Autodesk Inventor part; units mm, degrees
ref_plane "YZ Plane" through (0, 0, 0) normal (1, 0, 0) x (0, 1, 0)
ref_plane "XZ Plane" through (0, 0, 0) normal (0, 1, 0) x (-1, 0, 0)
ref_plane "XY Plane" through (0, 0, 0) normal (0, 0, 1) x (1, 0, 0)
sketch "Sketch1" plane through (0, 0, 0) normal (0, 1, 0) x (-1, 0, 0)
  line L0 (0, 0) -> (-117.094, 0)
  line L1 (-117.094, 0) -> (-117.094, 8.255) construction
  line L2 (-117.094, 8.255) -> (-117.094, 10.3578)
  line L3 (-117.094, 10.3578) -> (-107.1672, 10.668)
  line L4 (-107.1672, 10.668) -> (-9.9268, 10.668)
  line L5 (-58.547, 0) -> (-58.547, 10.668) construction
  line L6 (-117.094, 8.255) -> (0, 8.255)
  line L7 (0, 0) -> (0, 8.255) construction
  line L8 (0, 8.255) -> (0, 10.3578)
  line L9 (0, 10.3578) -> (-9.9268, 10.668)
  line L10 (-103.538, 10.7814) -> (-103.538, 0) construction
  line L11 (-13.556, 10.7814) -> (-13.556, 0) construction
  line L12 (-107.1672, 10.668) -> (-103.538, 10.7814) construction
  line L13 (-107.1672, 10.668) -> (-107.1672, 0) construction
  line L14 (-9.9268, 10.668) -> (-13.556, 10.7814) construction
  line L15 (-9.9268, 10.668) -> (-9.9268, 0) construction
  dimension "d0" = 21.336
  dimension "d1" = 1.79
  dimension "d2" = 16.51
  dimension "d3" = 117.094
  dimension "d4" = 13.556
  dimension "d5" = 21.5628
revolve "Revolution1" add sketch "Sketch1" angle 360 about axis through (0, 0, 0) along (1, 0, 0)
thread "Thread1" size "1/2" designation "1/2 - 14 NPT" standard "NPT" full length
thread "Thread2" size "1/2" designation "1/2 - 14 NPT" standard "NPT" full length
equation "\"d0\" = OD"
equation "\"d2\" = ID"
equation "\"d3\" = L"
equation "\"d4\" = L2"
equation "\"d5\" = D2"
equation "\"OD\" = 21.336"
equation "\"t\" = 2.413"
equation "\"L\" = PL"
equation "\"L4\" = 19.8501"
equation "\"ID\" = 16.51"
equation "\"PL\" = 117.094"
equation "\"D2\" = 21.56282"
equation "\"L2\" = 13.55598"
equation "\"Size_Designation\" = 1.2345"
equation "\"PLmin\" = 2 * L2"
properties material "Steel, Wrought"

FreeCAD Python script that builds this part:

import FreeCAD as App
import Part
import Sketcher
from FreeCAD import Vector
Q = App.Units.Quantity


def add_polygon(sketch, points):
    """Adds a closed chain of lines whose ends are joined by coincident constraints."""
    first, n = sketch.GeometryCount, len(points)
    for a, b in zip(points, points[1:] + points[:1]):
        sketch.addGeometry(Part.LineSegment(App.Vector(*a, 0), App.Vector(*b, 0)), False)
    for i in range(n):
        sketch.addConstraint(Sketcher.Constraint("Coincident", first + i, 2, first + (i + 1) % n, 1))

doc = App.newDocument("Part")
body = doc.addObject("PartDesign::Body", "Body")

sketch1 = body.newObject("Sketcher::SketchObject", "Sketch")
sketch1.AttachmentSupport = (doc.getObject("XZ_Plane"), [""])
sketch1.MapMode = "FlatFace"
add_polygon(sketch1, [(117.1, 10.4), (117.1, 8.3), (0, 8.3), (0, 10.4), (9.9, 10.7), (107.2, 10.7)])
sketch1.addConstraint([
    Sketcher.Constraint("Vertical", 0),
    Sketcher.Constraint("Horizontal", 1),
    Sketcher.Constraint("Vertical", 2),
    Sketcher.Constraint("Horizontal", 4),
    Sketcher.Constraint("PointOnObject", 1, 2, -2),
    Sketcher.Constraint("Horizontal", 2, 2, 5, 2),
    Sketcher.Constraint("Equal", 3, 5),
    Sketcher.Constraint("DistanceX", 1, 2, 1, 1, Q("4.61 in")),
    Sketcher.Constraint("Angle", 3, Q("1.7898 deg")),
    Sketcher.Constraint("DistanceY", -1, 1, 3, 2, Q("0.42 in")),
    Sketcher.Constraint("Distance", 3, Q("0.391 in")),
    Sketcher.Constraint("DistanceY", -1, 1, 0, 2, Q("0.325 in")),
])
revolution = body.newObject("PartDesign::Revolution", "Revolution")
revolution.Profile = sketch1
revolution.ReferenceAxis = (sketch1, ["H_Axis"])
revolution.Angle = 360

doc.recompute()
